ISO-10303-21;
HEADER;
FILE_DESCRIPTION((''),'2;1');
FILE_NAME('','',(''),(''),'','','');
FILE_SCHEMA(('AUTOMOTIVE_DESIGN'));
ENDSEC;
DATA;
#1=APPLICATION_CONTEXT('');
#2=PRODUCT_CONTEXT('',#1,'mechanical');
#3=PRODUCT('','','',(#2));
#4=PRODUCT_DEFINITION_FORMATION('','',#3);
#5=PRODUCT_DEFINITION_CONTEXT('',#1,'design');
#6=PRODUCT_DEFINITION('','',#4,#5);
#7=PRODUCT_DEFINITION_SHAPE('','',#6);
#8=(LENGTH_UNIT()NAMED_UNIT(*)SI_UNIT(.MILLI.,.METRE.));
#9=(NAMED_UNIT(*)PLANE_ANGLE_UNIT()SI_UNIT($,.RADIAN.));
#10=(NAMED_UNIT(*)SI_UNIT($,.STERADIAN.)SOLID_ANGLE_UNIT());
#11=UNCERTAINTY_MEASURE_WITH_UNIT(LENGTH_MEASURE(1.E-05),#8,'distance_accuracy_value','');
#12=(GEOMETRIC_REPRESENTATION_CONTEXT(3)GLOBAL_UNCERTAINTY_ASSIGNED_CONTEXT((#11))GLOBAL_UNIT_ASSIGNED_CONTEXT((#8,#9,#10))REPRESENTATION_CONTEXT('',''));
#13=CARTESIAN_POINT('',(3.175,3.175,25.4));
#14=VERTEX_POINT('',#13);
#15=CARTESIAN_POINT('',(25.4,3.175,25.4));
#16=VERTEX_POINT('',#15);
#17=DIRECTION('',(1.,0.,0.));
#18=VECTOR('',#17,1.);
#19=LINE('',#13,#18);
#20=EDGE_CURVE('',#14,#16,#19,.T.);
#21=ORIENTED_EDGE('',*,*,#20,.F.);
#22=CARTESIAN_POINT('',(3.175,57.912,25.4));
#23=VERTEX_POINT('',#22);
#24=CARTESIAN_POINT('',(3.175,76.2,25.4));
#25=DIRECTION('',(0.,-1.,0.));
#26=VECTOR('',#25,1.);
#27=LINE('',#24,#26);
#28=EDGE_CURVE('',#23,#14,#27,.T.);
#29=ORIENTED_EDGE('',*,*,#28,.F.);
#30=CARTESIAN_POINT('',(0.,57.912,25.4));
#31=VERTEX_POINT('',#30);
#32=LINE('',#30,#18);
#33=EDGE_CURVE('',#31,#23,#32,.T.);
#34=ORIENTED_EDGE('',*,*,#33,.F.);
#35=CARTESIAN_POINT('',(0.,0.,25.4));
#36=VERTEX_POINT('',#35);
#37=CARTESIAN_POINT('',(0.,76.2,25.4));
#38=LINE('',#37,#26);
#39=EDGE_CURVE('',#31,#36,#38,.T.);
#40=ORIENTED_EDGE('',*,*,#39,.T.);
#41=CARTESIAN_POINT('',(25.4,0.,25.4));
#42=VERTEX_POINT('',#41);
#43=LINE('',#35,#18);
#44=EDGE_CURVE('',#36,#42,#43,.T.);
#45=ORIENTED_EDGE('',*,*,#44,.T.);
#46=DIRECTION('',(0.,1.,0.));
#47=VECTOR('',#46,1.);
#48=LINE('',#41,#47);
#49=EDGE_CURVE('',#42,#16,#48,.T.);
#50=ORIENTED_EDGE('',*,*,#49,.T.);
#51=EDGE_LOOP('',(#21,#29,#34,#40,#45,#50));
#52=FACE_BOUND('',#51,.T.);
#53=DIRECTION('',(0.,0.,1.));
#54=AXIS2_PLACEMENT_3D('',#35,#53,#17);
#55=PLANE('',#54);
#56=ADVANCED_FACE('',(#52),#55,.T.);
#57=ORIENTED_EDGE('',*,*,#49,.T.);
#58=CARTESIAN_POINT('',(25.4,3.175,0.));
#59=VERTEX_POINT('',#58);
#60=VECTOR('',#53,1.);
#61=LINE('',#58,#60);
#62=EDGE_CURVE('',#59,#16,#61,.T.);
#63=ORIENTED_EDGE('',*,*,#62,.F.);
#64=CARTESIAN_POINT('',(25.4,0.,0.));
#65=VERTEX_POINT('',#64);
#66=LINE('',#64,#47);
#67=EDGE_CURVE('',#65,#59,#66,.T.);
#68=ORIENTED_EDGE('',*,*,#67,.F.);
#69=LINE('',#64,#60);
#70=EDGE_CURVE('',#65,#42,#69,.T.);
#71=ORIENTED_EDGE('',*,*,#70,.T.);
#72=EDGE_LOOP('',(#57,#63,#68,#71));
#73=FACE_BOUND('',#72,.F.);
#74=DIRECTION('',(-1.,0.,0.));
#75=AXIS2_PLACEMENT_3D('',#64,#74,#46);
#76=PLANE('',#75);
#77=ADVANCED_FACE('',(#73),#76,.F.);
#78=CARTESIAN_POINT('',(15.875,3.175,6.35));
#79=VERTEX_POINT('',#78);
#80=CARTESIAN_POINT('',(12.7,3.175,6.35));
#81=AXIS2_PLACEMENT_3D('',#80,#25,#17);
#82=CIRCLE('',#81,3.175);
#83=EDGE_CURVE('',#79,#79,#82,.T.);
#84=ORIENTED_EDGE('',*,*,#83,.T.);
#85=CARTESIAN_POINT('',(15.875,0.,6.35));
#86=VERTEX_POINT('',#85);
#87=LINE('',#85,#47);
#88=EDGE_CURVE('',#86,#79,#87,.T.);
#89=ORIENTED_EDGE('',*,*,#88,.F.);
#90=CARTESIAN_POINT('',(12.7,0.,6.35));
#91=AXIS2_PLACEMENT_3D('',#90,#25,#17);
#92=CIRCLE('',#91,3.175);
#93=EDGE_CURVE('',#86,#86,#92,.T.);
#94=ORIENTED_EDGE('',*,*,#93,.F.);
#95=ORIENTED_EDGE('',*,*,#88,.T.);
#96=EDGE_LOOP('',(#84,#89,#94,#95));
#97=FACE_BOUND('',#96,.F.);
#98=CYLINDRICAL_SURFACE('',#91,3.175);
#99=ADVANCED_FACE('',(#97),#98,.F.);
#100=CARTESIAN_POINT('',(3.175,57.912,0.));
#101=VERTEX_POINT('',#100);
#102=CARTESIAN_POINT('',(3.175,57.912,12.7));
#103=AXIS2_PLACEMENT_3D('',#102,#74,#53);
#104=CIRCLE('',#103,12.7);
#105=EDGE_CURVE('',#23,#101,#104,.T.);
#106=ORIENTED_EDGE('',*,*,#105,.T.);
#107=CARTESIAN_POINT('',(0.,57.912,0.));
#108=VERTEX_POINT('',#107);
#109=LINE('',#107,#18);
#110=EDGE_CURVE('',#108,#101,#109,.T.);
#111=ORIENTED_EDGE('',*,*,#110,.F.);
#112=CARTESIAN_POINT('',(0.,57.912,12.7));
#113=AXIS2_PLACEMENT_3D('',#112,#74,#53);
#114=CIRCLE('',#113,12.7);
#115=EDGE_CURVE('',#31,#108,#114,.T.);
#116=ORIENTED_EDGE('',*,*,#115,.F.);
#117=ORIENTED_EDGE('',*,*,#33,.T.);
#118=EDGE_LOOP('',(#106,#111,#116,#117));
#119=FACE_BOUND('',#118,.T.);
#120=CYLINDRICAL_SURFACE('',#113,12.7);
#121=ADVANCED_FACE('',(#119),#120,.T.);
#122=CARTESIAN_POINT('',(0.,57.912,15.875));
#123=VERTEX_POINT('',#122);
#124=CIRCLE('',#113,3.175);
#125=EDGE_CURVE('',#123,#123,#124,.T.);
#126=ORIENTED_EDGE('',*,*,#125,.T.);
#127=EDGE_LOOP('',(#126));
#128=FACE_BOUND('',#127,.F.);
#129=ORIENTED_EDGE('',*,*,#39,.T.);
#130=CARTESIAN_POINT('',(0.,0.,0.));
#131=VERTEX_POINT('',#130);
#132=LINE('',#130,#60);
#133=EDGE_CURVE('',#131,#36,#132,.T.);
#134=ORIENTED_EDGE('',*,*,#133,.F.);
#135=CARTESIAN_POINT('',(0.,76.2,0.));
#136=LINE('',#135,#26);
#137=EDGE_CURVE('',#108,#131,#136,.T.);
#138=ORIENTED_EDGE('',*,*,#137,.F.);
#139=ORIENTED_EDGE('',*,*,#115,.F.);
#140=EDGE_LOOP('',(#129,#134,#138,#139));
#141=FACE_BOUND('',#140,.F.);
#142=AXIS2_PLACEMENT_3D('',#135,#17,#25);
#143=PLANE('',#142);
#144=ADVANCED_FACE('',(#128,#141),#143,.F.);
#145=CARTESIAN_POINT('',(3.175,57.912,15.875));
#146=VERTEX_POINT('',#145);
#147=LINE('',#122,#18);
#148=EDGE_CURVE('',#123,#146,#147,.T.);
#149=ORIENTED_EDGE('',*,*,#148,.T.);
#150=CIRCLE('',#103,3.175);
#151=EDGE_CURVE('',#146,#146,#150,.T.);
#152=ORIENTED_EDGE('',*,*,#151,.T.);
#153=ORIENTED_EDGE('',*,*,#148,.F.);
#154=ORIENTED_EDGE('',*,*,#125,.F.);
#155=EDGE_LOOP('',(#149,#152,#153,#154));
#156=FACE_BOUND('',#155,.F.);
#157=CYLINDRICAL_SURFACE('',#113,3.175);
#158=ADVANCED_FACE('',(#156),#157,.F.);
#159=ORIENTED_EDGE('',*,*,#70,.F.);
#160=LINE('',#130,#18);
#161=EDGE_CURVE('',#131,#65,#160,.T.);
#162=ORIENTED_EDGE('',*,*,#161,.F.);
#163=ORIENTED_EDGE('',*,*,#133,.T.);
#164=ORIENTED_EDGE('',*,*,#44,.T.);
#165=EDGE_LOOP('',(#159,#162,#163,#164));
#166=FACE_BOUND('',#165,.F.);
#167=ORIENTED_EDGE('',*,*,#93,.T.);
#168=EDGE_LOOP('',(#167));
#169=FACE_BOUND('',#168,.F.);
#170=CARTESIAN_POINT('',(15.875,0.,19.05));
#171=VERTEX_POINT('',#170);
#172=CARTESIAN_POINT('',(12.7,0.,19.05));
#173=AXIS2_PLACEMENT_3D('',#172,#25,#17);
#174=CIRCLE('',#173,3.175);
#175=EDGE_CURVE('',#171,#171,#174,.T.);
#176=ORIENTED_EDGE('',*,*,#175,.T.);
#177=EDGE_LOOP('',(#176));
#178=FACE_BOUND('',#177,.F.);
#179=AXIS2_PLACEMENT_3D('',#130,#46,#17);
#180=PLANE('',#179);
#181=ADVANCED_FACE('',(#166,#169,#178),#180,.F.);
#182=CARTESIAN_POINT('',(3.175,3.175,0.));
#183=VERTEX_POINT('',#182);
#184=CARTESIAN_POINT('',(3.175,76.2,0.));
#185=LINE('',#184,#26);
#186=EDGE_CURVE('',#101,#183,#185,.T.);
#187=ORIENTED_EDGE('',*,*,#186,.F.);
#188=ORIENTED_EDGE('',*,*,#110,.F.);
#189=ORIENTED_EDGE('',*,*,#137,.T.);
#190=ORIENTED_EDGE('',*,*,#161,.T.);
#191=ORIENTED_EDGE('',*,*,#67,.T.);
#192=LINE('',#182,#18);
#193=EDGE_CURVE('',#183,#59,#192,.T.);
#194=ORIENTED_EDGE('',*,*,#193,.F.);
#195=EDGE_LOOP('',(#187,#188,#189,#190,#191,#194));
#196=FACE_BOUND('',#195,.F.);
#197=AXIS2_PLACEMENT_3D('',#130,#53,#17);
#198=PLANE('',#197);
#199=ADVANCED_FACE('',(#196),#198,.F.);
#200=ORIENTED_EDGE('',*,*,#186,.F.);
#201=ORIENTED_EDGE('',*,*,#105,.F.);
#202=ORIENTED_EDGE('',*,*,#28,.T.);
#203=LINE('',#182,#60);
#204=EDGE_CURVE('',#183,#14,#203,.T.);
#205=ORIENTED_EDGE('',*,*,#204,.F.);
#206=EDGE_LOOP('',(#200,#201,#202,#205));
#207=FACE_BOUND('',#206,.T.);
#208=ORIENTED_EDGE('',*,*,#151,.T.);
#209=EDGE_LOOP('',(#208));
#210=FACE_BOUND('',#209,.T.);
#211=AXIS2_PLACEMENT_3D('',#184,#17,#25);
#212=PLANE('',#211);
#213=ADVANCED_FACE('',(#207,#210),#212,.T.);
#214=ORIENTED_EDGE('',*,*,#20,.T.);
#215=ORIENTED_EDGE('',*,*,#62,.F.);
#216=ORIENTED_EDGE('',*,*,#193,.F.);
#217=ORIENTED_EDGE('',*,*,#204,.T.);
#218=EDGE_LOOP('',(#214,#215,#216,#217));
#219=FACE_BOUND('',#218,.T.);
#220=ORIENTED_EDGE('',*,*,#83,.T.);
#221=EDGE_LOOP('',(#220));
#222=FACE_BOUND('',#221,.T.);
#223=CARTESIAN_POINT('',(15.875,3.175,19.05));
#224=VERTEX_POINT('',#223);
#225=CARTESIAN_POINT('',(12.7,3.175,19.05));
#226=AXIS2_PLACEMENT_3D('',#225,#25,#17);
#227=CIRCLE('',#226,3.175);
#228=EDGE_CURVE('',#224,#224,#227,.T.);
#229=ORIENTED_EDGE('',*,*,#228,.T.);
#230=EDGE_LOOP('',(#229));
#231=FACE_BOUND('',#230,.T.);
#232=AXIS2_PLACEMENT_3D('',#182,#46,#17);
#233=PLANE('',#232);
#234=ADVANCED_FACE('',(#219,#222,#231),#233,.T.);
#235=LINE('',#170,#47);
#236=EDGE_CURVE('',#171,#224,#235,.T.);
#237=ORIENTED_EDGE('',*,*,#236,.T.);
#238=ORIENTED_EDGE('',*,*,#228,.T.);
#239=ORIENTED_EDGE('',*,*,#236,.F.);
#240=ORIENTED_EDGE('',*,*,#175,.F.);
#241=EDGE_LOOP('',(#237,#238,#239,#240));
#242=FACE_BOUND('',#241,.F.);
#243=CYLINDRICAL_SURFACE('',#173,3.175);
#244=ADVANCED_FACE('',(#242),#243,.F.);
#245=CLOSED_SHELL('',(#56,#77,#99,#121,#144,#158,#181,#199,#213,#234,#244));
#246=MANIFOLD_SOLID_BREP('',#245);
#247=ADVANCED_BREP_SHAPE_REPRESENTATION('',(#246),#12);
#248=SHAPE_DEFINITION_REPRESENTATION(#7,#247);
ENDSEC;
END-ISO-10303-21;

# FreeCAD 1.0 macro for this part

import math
import FreeCAD as App
import Part
import Sketcher
Q = App.Units.Quantity

doc = App.newDocument("Part")
body = doc.addObject("PartDesign::Body", "Body")

sketch1 = doc.addObject("Sketcher::SketchObject", "Sketch")
body.addObject(sketch1)
sketch1.AttachmentSupport = (doc.XY_Plane, [""])
sketch1.MapMode = "FlatFace"
sketch1.addGeometry(Part.LineSegment(App.Vector(0, 76.2, 0), App.Vector(0, 0, 0)), False)
sketch1.addGeometry(Part.LineSegment(App.Vector(0, 0, 0), App.Vector(25.4, 0, 0)), False)
sketch1.addGeometry(Part.LineSegment(App.Vector(25.4, 0, 0), App.Vector(25.4, 3.175, 0)), False)
sketch1.addGeometry(Part.LineSegment(App.Vector(25.4, 3.175, 0), App.Vector(3.175, 3.175, 0)), False)
sketch1.addGeometry(Part.LineSegment(App.Vector(3.175, 3.175, 0), App.Vector(3.175, 76.2, 0)), False)
sketch1.addGeometry(Part.LineSegment(App.Vector(3.175, 76.2, 0), App.Vector(0, 76.2, 0)), False)
sketch1.addConstraint(Sketcher.Constraint("Coincident", 0, 2, 1, 1))
sketch1.addConstraint(Sketcher.Constraint("Coincident", 1, 2, 2, 1))
sketch1.addConstraint(Sketcher.Constraint("Coincident", 2, 2, 3, 1))
sketch1.addConstraint(Sketcher.Constraint("Coincident", 3, 2, 4, 1))
sketch1.addConstraint(Sketcher.Constraint("Coincident", 4, 2, 5, 1))
sketch1.addConstraint(Sketcher.Constraint("Coincident", 5, 2, 0, 1))
sketch1.addConstraint(Sketcher.Constraint("Vertical", 0))
sketch1.addConstraint(Sketcher.Constraint("Horizontal", 1))
sketch1.addConstraint(Sketcher.Constraint("Vertical", 2))
sketch1.addConstraint(Sketcher.Constraint("Horizontal", 3))
sketch1.addConstraint(Sketcher.Constraint("Vertical", 4))
sketch1.addConstraint(Sketcher.Constraint("Horizontal", 5))
sketch1.addConstraint(Sketcher.Constraint("Coincident", 0, 2, -1, 1))
sketch1.addConstraint(Sketcher.Constraint("Equal", 5, 2))
sketch1.addConstraint(Sketcher.Constraint("DistanceX", 1, 1, 1, 2, Q("1 in")))
sketch1.addConstraint(Sketcher.Constraint("DistanceY", 0, 2, 0, 1, Q("3 in")))
sketch1.addConstraint(Sketcher.Constraint("DistanceX", 5, 2, 5, 1, Q("0.125 in")))
pad1 = doc.addObject("PartDesign::Pad", "Pad")
body.addObject(pad1)
pad1.Profile = sketch1
pad1.Length = Q("1 in")

sketch2 = doc.addObject("Sketcher::SketchObject", "Sketch001")
body.addObject(sketch2)
sketch2.AttachmentSupport = (doc.XZ_Plane, [""])
sketch2.MapMode = "FlatFace"
sketch2.addGeometry(Part.Circle(App.Vector(12.7, 19.05, 0), App.Vector(0, 0, 1), 3.175), False)
sketch2.addGeometry(Part.Circle(App.Vector(12.7, 6.35, 0), App.Vector(0, 0, 1), 3.175), False)
sketch2.addConstraint(Sketcher.Constraint("Equal", 0, 1))
sketch2.addConstraint(Sketcher.Constraint("Vertical", 0, 3, 1, 3))
sketch2.addConstraint(Sketcher.Constraint("Diameter", 0, Q("0.25 in")))
sketch2.addConstraint(Sketcher.Constraint("DistanceX", -1, 1, 0, 3, Q("0.5 in")))
sketch2.addConstraint(Sketcher.Constraint("DistanceY", 1, 3, 0, 3, Q("0.5 in")))
sketch2.addConstraint(Sketcher.Constraint("DistanceY", -1, 1, 1, 3, Q("0.25 in")))
pocket1 = doc.addObject("PartDesign::Pocket", "Pocket")
body.addObject(pocket1)
pocket1.Profile = sketch2
pocket1.Length = Q("1 in")

sketch3 = doc.addObject("Sketcher::SketchObject", "Sketch002")
body.addObject(sketch3)
sketch3.AttachmentSupport = (doc.YZ_Plane, [""])
sketch3.MapMode = "FlatFace"
sketch3.addGeometry(Part.ArcOfCircle(Part.Circle(App.Vector(57.912, 12.7, 0), App.Vector(0, 0, 1), 12.7), math.radians(-90), math.radians(90)), False)
sketch3.addGeometry(Part.LineSegment(App.Vector(57.912, 25.4, 0), App.Vector(76.2, 25.4, 0)), False)
sketch3.addGeometry(Part.LineSegment(App.Vector(76.2, 25.4, 0), App.Vector(76.2, 0, 0)), False)
sketch3.addGeometry(Part.LineSegment(App.Vector(76.2, 0, 0), App.Vector(57.912, 0, 0)), False)
sketch3.addGeometry(Part.Circle(App.Vector(57.912, 12.7, 0), App.Vector(0, 0, 1), 3.175), False)
sketch3.addConstraint(Sketcher.Constraint("Tangent", 0, 2, 1, 1))
sketch3.addConstraint(Sketcher.Constraint("Coincident", 1, 2, 2, 1))
sketch3.addConstraint(Sketcher.Constraint("Coincident", 2, 2, 3, 1))
sketch3.addConstraint(Sketcher.Constraint("Tangent", 3, 2, 0, 1))
sketch3.addConstraint(Sketcher.Constraint("Horizontal", 1))
sketch3.addConstraint(Sketcher.Constraint("Vertical", 2))
sketch3.addConstraint(Sketcher.Constraint("Horizontal", 3))
sketch3.addConstraint(Sketcher.Constraint("Coincident", 4, 3, 0, 3))
sketch3.addConstraint(Sketcher.Constraint("PointOnObject", 2, 2, -1))
sketch3.addConstraint(Sketcher.Constraint("Radius", 0, Q("0.5 in")))
sketch3.addConstraint(Sketcher.Constraint("Diameter", 4, Q("0.25 in")))
sketch3.addConstraint(Sketcher.Constraint("DistanceX", -1, 1, 0, 3, Q("2.28 in")))
sketch3.addConstraint(Sketcher.Constraint("DistanceX", -1, 1, 1, 2, Q("3 in")))
pocket2 = doc.addObject("PartDesign::Pocket", "Pocket001")
body.addObject(pocket2)
pocket2.Profile = sketch3
pocket2.Length = Q("1 in")
pocket2.Reversed = True

doc.recompute()
